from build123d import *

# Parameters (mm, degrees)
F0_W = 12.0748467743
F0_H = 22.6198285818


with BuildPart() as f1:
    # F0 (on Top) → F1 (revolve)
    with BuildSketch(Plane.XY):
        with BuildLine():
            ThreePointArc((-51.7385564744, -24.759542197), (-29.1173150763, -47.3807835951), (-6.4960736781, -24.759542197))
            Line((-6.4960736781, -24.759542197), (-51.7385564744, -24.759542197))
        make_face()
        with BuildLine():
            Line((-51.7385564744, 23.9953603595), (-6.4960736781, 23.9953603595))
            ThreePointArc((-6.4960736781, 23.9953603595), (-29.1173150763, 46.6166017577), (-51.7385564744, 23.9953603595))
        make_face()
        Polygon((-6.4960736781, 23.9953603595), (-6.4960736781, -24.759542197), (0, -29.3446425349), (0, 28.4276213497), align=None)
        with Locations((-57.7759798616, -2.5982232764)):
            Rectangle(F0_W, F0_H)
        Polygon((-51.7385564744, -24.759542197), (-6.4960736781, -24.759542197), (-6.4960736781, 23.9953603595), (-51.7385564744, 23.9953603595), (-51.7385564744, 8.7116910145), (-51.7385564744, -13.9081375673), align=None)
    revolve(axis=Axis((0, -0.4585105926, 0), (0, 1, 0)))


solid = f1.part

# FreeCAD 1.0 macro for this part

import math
import FreeCAD as App
import Part
import Sketcher

doc = App.newDocument("Part")
params = doc.addObject("Spreadsheet::Sheet", "Params")
for row, (alias, value) in enumerate([
    ("revolution_angle", "360 deg"),
], start=1):
    params.set(f"A{row}", alias)
    params.set(f"B{row}", "=" + value)
    params.setAlias(f"B{row}", alias)

body = doc.addObject("PartDesign::Body", "Body")

sketch1 = doc.addObject("Sketcher::SketchObject", "Sketch")
body.addObject(sketch1)
sketch1.AttachmentSupport = (doc.XY_Plane, [""])
sketch1.MapMode = "FlatFace"
sketch1.addGeometry([
    Part.ArcOfCircle(Part.Circle(App.Vector(-29, -25, 0), App.Vector(0, 0, 1), 23), math.radians(180), math.radians(360)),
    Part.LineSegment(App.Vector(-6, -25, 0), App.Vector(0, -29, 0)),
    Part.LineSegment(App.Vector(0, -29, 0), App.Vector(0, 28, 0)),
    Part.LineSegment(App.Vector(0, 28, 0), App.Vector(-6, 24, 0)),
    Part.ArcOfCircle(Part.Circle(App.Vector(-29, 24, 0), App.Vector(0, 0, 1), 23), math.radians(0), math.radians(180)),
    Part.LineSegment(App.Vector(-52, 24, 0), App.Vector(-52, 9, 0)),
    Part.LineSegment(App.Vector(-52, 9, 0), App.Vector(-64, 9, 0)),
    Part.LineSegment(App.Vector(-64, 9, 0), App.Vector(-64, -14, 0)),
    Part.LineSegment(App.Vector(-64, -14, 0), App.Vector(-52, -14, 0)),
    Part.LineSegment(App.Vector(-52, -14, 0), App.Vector(-52, -25, 0)),
], False)
sketch1.addConstraint([
    Sketcher.Constraint("Coincident", 0, 2, 1, 1),
    Sketcher.Constraint("Coincident", 1, 2, 2, 1),
    Sketcher.Constraint("Coincident", 2, 2, 3, 1),
    Sketcher.Constraint("Coincident", 3, 2, 4, 1),
    Sketcher.Constraint("Tangent", 4, 2, 5, 1),
    Sketcher.Constraint("Coincident", 5, 2, 6, 1),
    Sketcher.Constraint("Coincident", 6, 2, 7, 1),
    Sketcher.Constraint("Coincident", 7, 2, 8, 1),
    Sketcher.Constraint("Coincident", 8, 2, 9, 1),
    Sketcher.Constraint("Tangent", 9, 2, 0, 1),
    Sketcher.Constraint("Vertical", 2),
    Sketcher.Constraint("Vertical", 5),
    Sketcher.Constraint("Horizontal", 6),
    Sketcher.Constraint("Vertical", 7),
    Sketcher.Constraint("Horizontal", 8),
    Sketcher.Constraint("Vertical", 9),
    Sketcher.Constraint("Equal", 0, 4),
    Sketcher.Constraint("PointOnObject", 1, 2, -2),
    Sketcher.Constraint("Horizontal", 4, 3, 3, 2),
    Sketcher.Constraint("Horizontal", 0, 2, 9, 2),
    Sketcher.Constraint("Vertical", 0, 3, 4, 3),
    Sketcher.Constraint("Radius", 0, 22.621241),
    Sketcher.Constraint("DistanceY", 5, 2, 5, 1, 15.283669),
    Sketcher.Constraint("DistanceY", 7, 2, 7, 1, 22.619829),
    Sketcher.Constraint("DistanceY", 1, 2, 0, 2, 4.5851),
    Sketcher.Constraint("Distance", 3, 7.86409),
    Sketcher.Constraint("DistanceX", 6, 2, 6, 1, 12.074847),
    Sketcher.Constraint("DistanceY", 2, 1, 2, 2, 57.772264),
    Sketcher.Constraint("DistanceY", 9, 2, 9, 1, 10.851405),
    Sketcher.Constraint("DistanceY", -1, 1, 4, 3, 23.99536),
])
revolution = doc.addObject("PartDesign::Revolution", "Revolution")
body.addObject(revolution)
revolution.Profile = sketch1
revolution.ReferenceAxis = (sketch1, ["V_Axis"])
revolution.setExpression("Angle", "Params.revolution_angle")

doc.recompute()
